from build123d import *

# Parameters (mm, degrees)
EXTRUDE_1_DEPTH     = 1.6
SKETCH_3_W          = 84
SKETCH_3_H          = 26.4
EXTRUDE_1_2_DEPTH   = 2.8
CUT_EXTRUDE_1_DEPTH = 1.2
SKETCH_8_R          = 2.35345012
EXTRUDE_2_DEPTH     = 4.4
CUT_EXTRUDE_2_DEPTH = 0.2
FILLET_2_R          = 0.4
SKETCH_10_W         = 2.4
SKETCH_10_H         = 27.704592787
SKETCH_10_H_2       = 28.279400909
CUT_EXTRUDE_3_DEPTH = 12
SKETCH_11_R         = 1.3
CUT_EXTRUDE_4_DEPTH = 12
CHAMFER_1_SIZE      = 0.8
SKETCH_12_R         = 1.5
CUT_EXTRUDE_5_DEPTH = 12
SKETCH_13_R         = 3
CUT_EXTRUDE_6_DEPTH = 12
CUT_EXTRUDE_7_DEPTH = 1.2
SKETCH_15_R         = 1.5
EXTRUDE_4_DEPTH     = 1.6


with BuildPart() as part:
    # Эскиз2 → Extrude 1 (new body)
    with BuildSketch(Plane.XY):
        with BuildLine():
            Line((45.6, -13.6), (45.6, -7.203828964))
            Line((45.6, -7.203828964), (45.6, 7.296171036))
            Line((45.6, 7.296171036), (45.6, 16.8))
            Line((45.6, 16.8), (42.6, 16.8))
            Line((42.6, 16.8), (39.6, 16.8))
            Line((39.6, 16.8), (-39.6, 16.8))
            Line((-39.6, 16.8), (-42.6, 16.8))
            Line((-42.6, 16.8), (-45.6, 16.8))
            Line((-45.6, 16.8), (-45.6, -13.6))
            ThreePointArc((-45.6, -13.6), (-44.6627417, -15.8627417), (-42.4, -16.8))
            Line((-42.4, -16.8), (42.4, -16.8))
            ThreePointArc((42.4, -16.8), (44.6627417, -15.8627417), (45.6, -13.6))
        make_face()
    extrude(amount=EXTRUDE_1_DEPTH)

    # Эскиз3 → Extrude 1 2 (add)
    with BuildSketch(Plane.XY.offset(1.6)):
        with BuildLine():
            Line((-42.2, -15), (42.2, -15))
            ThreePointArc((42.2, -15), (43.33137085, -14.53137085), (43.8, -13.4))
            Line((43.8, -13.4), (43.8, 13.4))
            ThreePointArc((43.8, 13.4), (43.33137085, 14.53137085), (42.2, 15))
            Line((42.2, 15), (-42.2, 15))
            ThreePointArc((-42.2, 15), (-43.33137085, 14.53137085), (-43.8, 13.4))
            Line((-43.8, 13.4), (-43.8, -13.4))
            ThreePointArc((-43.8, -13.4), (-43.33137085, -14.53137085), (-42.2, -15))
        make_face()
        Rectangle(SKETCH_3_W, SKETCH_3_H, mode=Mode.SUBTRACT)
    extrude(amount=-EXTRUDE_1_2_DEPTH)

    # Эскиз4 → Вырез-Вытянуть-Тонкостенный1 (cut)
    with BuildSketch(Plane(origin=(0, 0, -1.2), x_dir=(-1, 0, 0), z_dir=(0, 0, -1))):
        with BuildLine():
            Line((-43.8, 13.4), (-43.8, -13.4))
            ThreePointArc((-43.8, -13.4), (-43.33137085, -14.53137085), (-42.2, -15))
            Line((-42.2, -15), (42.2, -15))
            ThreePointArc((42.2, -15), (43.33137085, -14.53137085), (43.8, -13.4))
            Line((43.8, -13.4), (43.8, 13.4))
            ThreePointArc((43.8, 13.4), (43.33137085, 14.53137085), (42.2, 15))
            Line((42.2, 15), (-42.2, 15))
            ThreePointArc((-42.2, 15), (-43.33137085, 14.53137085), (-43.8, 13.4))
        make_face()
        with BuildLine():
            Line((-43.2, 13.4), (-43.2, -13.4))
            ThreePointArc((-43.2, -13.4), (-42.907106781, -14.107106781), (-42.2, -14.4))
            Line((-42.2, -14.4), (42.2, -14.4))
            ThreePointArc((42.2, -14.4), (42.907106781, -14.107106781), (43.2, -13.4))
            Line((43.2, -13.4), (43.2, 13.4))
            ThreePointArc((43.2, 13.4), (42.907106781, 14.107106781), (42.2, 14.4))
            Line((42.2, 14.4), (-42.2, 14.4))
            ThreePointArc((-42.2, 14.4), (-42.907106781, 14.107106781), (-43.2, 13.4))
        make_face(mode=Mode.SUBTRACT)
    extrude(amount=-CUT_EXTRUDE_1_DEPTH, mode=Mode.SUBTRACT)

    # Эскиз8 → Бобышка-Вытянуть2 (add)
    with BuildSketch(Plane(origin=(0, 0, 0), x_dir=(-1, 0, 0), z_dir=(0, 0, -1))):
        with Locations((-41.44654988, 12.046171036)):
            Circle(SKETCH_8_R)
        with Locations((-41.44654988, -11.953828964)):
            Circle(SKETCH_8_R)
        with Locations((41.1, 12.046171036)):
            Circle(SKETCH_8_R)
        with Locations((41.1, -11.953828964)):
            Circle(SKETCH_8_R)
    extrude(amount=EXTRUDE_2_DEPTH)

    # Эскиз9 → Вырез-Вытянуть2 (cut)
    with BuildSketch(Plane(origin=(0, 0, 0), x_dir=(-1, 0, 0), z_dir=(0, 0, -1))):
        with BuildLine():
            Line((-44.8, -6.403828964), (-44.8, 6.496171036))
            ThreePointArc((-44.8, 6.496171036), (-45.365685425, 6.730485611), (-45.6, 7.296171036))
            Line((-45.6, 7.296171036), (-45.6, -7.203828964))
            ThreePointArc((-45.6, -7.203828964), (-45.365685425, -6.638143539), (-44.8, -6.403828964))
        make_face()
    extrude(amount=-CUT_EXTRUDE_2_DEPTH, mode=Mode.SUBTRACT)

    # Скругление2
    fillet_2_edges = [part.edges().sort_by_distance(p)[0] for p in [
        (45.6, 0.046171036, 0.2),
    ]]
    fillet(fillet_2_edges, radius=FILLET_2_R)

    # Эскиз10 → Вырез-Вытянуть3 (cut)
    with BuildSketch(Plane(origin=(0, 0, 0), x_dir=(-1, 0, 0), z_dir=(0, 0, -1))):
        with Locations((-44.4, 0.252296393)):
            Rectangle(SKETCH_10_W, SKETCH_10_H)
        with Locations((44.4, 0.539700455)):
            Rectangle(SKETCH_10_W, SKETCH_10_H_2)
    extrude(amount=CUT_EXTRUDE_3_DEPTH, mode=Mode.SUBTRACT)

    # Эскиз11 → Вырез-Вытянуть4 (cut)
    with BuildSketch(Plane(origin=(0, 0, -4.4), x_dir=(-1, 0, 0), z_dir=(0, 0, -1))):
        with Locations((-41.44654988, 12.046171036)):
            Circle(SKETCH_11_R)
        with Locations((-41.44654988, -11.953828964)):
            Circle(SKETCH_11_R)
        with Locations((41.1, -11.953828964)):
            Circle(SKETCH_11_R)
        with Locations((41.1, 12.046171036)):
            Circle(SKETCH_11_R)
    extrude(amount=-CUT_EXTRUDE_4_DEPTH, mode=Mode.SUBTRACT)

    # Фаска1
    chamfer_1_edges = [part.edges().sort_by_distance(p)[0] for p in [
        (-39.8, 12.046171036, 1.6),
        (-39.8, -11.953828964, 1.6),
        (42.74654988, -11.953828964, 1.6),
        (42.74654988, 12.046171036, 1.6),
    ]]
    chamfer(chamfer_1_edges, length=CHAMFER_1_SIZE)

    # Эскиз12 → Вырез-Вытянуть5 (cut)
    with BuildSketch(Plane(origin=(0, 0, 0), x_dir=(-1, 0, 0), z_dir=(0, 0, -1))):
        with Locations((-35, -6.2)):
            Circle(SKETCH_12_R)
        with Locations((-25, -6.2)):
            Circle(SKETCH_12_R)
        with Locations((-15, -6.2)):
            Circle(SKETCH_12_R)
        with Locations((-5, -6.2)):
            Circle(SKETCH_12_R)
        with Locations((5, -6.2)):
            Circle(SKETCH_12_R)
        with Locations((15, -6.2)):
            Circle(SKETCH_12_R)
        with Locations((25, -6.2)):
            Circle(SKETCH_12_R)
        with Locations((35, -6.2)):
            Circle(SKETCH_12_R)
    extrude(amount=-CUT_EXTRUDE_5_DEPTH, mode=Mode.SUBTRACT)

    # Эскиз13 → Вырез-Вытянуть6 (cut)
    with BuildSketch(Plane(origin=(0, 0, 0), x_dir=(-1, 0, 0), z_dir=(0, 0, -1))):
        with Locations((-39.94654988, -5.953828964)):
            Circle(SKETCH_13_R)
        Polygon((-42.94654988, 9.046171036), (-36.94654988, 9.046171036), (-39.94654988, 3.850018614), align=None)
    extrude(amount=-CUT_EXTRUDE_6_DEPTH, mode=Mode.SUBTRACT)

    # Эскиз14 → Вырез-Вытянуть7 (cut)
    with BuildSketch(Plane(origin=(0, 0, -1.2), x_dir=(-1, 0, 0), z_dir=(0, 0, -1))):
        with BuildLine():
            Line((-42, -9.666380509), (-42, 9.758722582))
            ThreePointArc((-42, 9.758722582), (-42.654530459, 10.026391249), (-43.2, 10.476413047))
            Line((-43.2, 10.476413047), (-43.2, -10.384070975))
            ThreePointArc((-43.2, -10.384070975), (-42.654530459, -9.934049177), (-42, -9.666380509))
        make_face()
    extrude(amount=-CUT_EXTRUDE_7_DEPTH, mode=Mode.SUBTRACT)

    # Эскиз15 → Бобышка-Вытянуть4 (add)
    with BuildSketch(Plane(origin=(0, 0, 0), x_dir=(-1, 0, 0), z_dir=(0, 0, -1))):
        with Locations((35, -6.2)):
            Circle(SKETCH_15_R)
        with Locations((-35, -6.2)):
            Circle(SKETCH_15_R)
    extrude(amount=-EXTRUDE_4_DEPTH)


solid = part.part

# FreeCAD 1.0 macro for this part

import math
import FreeCAD as App
import Part
import Sketcher
Q = App.Units.Quantity


def edges_at(feature, points):
    """Names of the edges that pass closest to the given points."""
    edges = feature.Shape.Edges
    near = lambda p: min(range(len(edges)), key=lambda i: edges[i].distToShape(Part.Vertex(*p))[0])
    return sorted({f"Edge{near(p) + 1}" for p in points})

doc = App.newDocument("Part")
body = doc.addObject("PartDesign::Body", "Body")

sketch1 = body.newObject("Sketcher::SketchObject", "Sketch")
sketch1.AttachmentSupport = (doc.getObject("XY_Plane"), [""])
sketch1.MapMode = "FlatFace"
sketch1.addGeometry(Part.LineSegment(App.Vector(45.6, -13.6, 0), App.Vector(45.6, 16.8, 0)), False)
sketch1.addGeometry(Part.LineSegment(App.Vector(45.6, 16.8, 0), App.Vector(-45.6, 16.8, 0)), False)
sketch1.addGeometry(Part.LineSegment(App.Vector(-45.6, 16.8, 0), App.Vector(-45.6, -13.6, 0)), False)
sketch1.addGeometry(Part.ArcOfCircle(Part.Circle(App.Vector(-42.4, -13.6, 0), App.Vector(0, 0, 1), 3.2), math.radians(180), math.radians(270)), False)
sketch1.addGeometry(Part.LineSegment(App.Vector(-42.4, -16.8, 0), App.Vector(42.4, -16.8, 0)), False)
sketch1.addGeometry(Part.ArcOfCircle(Part.Circle(App.Vector(42.4, -13.6, 0), App.Vector(0, 0, 1), 3.2), math.radians(-90), math.radians(0)), False)
sketch1.addConstraint(Sketcher.Constraint("Coincident", 0, 2, 1, 1))
sketch1.addConstraint(Sketcher.Constraint("Coincident", 1, 2, 2, 1))
sketch1.addConstraint(Sketcher.Constraint("Tangent", 2, 2, 3, 1))
sketch1.addConstraint(Sketcher.Constraint("Tangent", 3, 2, 4, 1))
sketch1.addConstraint(Sketcher.Constraint("Tangent", 4, 2, 5, 1))
sketch1.addConstraint(Sketcher.Constraint("Tangent", 5, 2, 0, 1))
sketch1.addConstraint(Sketcher.Constraint("Vertical", 0))
sketch1.addConstraint(Sketcher.Constraint("Horizontal", 1))
sketch1.addConstraint(Sketcher.Constraint("Vertical", 2))
sketch1.addConstraint(Sketcher.Constraint("Horizontal", 4))
sketch1.addConstraint(Sketcher.Constraint("Equal", 3, 5))
sketch1.addConstraint(Sketcher.Constraint("Radius", 3, 3.2))
sketch1.addConstraint(Sketcher.Constraint("DistanceX", 1, 2, 1, 1, 91.2))
sketch1.addConstraint(Sketcher.Constraint("DistanceY", 0, 1, 0, 2, 30.4))
sketch1.addConstraint(Sketcher.Constraint("DistanceX", 3, 3, -1, 1, 42.4))
sketch1.addConstraint(Sketcher.Constraint("DistanceY", 3, 3, -1, 1, 13.6))
pad1 = body.newObject("PartDesign::Pad", "Pad")
pad1.Profile = sketch1
pad1.Length = 1.6

sketch2 = body.newObject("Sketcher::SketchObject", "Sketch001")
sketch2.AttachmentSupport = (doc.getObject("XY_Plane"), [""])
sketch2.MapMode = "FlatFace"
sketch2.AttachmentOffset = App.Placement(App.Vector(0, 0, 1.6), App.Rotation())
sketch2.addGeometry(Part.LineSegment(App.Vector(-42.2, -15, 0), App.Vector(42.2, -15, 0)), False)
sketch2.addGeometry(Part.ArcOfCircle(Part.Circle(App.Vector(42.2, -13.4, 0), App.Vector(0, 0, 1), 1.6), math.radians(-90), math.radians(0)), False)
sketch2.addGeometry(Part.LineSegment(App.Vector(43.8, -13.4, 0), App.Vector(43.8, 13.4, 0)), False)
sketch2.addGeometry(Part.ArcOfCircle(Part.Circle(App.Vector(42.2, 13.4, 0), App.Vector(0, 0, 1), 1.6), math.radians(0), math.radians(90)), False)
sketch2.addGeometry(Part.LineSegment(App.Vector(42.2, 15, 0), App.Vector(-42.2, 15, 0)), False)
sketch2.addGeometry(Part.ArcOfCircle(Part.Circle(App.Vector(-42.2, 13.4, 0), App.Vector(0, 0, 1), 1.6), math.radians(90), math.radians(180)), False)
sketch2.addGeometry(Part.LineSegment(App.Vector(-43.8, 13.4, 0), App.Vector(-43.8, -13.4, 0)), False)
sketch2.addGeometry(Part.ArcOfCircle(Part.Circle(App.Vector(-42.2, -13.4, 0), App.Vector(0, 0, 1), 1.6), math.radians(180), math.radians(270)), False)
sketch2.addGeometry(Part.LineSegment(App.Vector(42, -13.2, 0), App.Vector(-42, -13.2, 0)), False)
sketch2.addGeometry(Part.LineSegment(App.Vector(-42, -13.2, 0), App.Vector(-42, 13.2, 0)), False)
sketch2.addGeometry(Part.LineSegment(App.Vector(-42, 13.2, 0), App.Vector(42, 13.2, 0)), False)
sketch2.addGeometry(Part.LineSegment(App.Vector(42, 13.2, 0), App.Vector(42, -13.2, 0)), False)
sketch2.addConstraint(Sketcher.Constraint("Tangent", 0, 2, 1, 1))
sketch2.addConstraint(Sketcher.Constraint("Tangent", 1, 2, 2, 1))
sketch2.addConstraint(Sketcher.Constraint("Tangent", 2, 2, 3, 1))
sketch2.addConstraint(Sketcher.Constraint("Tangent", 3, 2, 4, 1))
sketch2.addConstraint(Sketcher.Constraint("Tangent", 4, 2, 5, 1))
sketch2.addConstraint(Sketcher.Constraint("Tangent", 5, 2, 6, 1))
sketch2.addConstraint(Sketcher.Constraint("Tangent", 6, 2, 7, 1))
sketch2.addConstraint(Sketcher.Constraint("Tangent", 7, 2, 0, 1))
sketch2.addConstraint(Sketcher.Constraint("Coincident", 8, 2, 9, 1))
sketch2.addConstraint(Sketcher.Constraint("Coincident", 9, 2, 10, 1))
sketch2.addConstraint(Sketcher.Constraint("Coincident", 10, 2, 11, 1))
sketch2.addConstraint(Sketcher.Constraint("Coincident", 11, 2, 8, 1))
sketch2.addConstraint(Sketcher.Constraint("Horizontal", 0))
sketch2.addConstraint(Sketcher.Constraint("Vertical", 2))
sketch2.addConstraint(Sketcher.Constraint("Horizontal", 4))
sketch2.addConstraint(Sketcher.Constraint("Vertical", 6))
sketch2.addConstraint(Sketcher.Constraint("Horizontal", 8))
sketch2.addConstraint(Sketcher.Constraint("Vertical", 9))
sketch2.addConstraint(Sketcher.Constraint("Horizontal", 10))
sketch2.addConstraint(Sketcher.Constraint("Vertical", 11))
sketch2.addConstraint(Sketcher.Constraint("Equal", 1, 3))
sketch2.addConstraint(Sketcher.Constraint("Equal", 3, 5))
sketch2.addConstraint(Sketcher.Constraint("Equal", 5, 7))
sketch2.addConstraint(Sketcher.Constraint("Symmetric", 1, 3, 5, 3, -1, 1))
sketch2.addConstraint(Sketcher.Constraint("Symmetric", 8, 2, 10, 2, -1, 1))
sketch2.addConstraint(Sketcher.Constraint("Radius", 1, 1.6))
sketch2.addConstraint(Sketcher.Constraint("DistanceX", 8, 2, 8, 1, 84.0))
sketch2.addConstraint(Sketcher.Constraint("DistanceX", 0, 1, 0, 2, 84.4))
sketch2.addConstraint(Sketcher.Constraint("DistanceY", 2, 1, 2, 2, 26.8))
sketch2.addConstraint(Sketcher.Constraint("DistanceY", 9, 1, 9, 2, 26.4))
pad2 = body.newObject("PartDesign::Pad", "Pad001")
pad2.Profile = sketch2
pad2.Length = 2.8
pad2.Reversed = True

sketch3 = body.newObject("Sketcher::SketchObject", "Sketch002")
sketch3.AttachmentSupport = (doc.getObject("XY_Plane"), [""])
sketch3.MapMode = "FlatFace"
sketch3.AttachmentOffset = App.Placement(App.Vector(0, 0, -1.2), App.Rotation())
sketch3.addGeometry(Part.LineSegment(App.Vector(43.8, 13.4, 0), App.Vector(43.8, -13.4, 0)), False)
sketch3.addGeometry(Part.ArcOfCircle(Part.Circle(App.Vector(42.2, -13.4, 0), App.Vector(0, 0, 1), 1.6), math.radians(-90), math.radians(0)), False)
sketch3.addGeometry(Part.LineSegment(App.Vector(42.2, -15, 0), App.Vector(-42.2, -15, 0)), False)
sketch3.addGeometry(Part.ArcOfCircle(Part.Circle(App.Vector(-42.2, -13.4, 0), App.Vector(0, 0, 1), 1.6), math.radians(180), math.radians(270)), False)
sketch3.addGeometry(Part.LineSegment(App.Vector(-43.8, -13.4, 0), App.Vector(-43.8, 13.4, 0)), False)
sketch3.addGeometry(Part.ArcOfCircle(Part.Circle(App.Vector(-42.2, 13.4, 0), App.Vector(0, 0, 1), 1.6), math.radians(90), math.radians(180)), False)
sketch3.addGeometry(Part.LineSegment(App.Vector(-42.2, 15, 0), App.Vector(42.2, 15, 0)), False)
sketch3.addGeometry(Part.ArcOfCircle(Part.Circle(App.Vector(42.2, 13.4, 0), App.Vector(0, 0, 1), 1.6), math.radians(0), math.radians(90)), False)
sketch3.addGeometry(Part.LineSegment(App.Vector(43.2, -13.4, 0), App.Vector(43.2, 13.4, 0)), False)
sketch3.addGeometry(Part.ArcOfCircle(Part.Circle(App.Vector(42.2, 13.4, 0), App.Vector(0, 0, 1), 1), math.radians(0), math.radians(90)), False)
sketch3.addGeometry(Part.LineSegment(App.Vector(42.2, 14.4, 0), App.Vector(-42.2, 14.4, 0)), False)
sketch3.addGeometry(Part.ArcOfCircle(Part.Circle(App.Vector(-42.2, 13.4, 0), App.Vector(0, 0, 1), 1), math.radians(90), math.radians(180)), False)
sketch3.addGeometry(Part.LineSegment(App.Vector(-43.2, 13.4, 0), App.Vector(-43.2, -13.4, 0)), False)
sketch3.addGeometry(Part.ArcOfCircle(Part.Circle(App.Vector(-42.2, -13.4, 0), App.Vector(0, 0, 1), 1), math.radians(-180), math.radians(-90)), False)
sketch3.addGeometry(Part.LineSegment(App.Vector(-42.2, -14.4, 0), App.Vector(42.2, -14.4, 0)), False)
sketch3.addGeometry(Part.ArcOfCircle(Part.Circle(App.Vector(42.2, -13.4, 0), App.Vector(0, 0, 1), 1), math.radians(-90), math.radians(0)), False)
sketch3.addConstraint(Sketcher.Constraint("Tangent", 0, 2, 1, 2))
sketch3.addConstraint(Sketcher.Constraint("Tangent", 1, 1, 2, 1))
sketch3.addConstraint(Sketcher.Constraint("Tangent", 2, 2, 3, 2))
sketch3.addConstraint(Sketcher.Constraint("Tangent", 3, 1, 4, 1))
sketch3.addConstraint(Sketcher.Constraint("Tangent", 4, 2, 5, 2))
sketch3.addConstraint(Sketcher.Constraint("Tangent", 5, 1, 6, 1))
sketch3.addConstraint(Sketcher.Constraint("Tangent", 6, 2, 7, 2))
sketch3.addConstraint(Sketcher.Constraint("Tangent", 7, 1, 0, 1))
sketch3.addConstraint(Sketcher.Constraint("Tangent", 8, 2, 9, 1))
sketch3.addConstraint(Sketcher.Constraint("Tangent", 9, 2, 10, 1))
sketch3.addConstraint(Sketcher.Constraint("Tangent", 10, 2, 11, 1))
sketch3.addConstraint(Sketcher.Constraint("Tangent", 11, 2, 12, 1))
sketch3.addConstraint(Sketcher.Constraint("Tangent", 12, 2, 13, 1))
sketch3.addConstraint(Sketcher.Constraint("Tangent", 13, 2, 14, 1))
sketch3.addConstraint(Sketcher.Constraint("Tangent", 14, 2, 15, 1))
sketch3.addConstraint(Sketcher.Constraint("Tangent", 15, 2, 8, 1))
sketch3.addConstraint(Sketcher.Constraint("Vertical", 0))
sketch3.addConstraint(Sketcher.Constraint("Horizontal", 2))
sketch3.addConstraint(Sketcher.Constraint("Vertical", 4))
sketch3.addConstraint(Sketcher.Constraint("Horizontal", 6))
sketch3.addConstraint(Sketcher.Constraint("Vertical", 8))
sketch3.addConstraint(Sketcher.Constraint("Horizontal", 10))
sketch3.addConstraint(Sketcher.Constraint("Vertical", 12))
sketch3.addConstraint(Sketcher.Constraint("Horizontal", 14))
sketch3.addConstraint(Sketcher.Constraint("Coincident", 9, 3, 7, 3))
sketch3.addConstraint(Sketcher.Constraint("Coincident", 11, 3, 5, 3))
sketch3.addConstraint(Sketcher.Constraint("Coincident", 13, 3, 3, 3))
sketch3.addConstraint(Sketcher.Constraint("Equal", 1, 3))
sketch3.addConstraint(Sketcher.Constraint("Equal", 3, 5))
sketch3.addConstraint(Sketcher.Constraint("Equal", 5, 7))
sketch3.addConstraint(Sketcher.Constraint("Equal", 13, 15))
sketch3.addConstraint(Sketcher.Constraint("Symmetric", 1, 3, 5, 3, -1, 1))
sketch3.addConstraint(Sketcher.Constraint("Radius", 9, 1.0))
sketch3.addConstraint(Sketcher.Constraint("Radius", 1, 1.6))
sketch3.addConstraint(Sketcher.Constraint("DistanceX", 2, 2, 2, 1, 84.4))
sketch3.addConstraint(Sketcher.Constraint("DistanceY", 0, 2, 0, 1, 26.8))
pocket1 = body.newObject("PartDesign::Pocket", "Pocket")
pocket1.Profile = sketch3
pocket1.Length = 1.2
pocket1.Reversed = True

sketch4 = body.newObject("Sketcher::SketchObject", "Sketch003")
sketch4.AttachmentSupport = (doc.getObject("XY_Plane"), [""])
sketch4.MapMode = "FlatFace"
sketch4.addGeometry(Part.Circle(App.Vector(41.4, 12, 0), App.Vector(0, 0, 1), 2.4), False)
sketch4.addGeometry(Part.Circle(App.Vector(41.4, -12, 0), App.Vector(0, 0, 1), 2.4), False)
sketch4.addGeometry(Part.Circle(App.Vector(-41.1, 12, 0), App.Vector(0, 0, 1), 2.4), False)
sketch4.addGeometry(Part.Circle(App.Vector(-41.1, -12, 0), App.Vector(0, 0, 1), 2.4), False)
sketch4.addConstraint(Sketcher.Constraint("Equal", 0, 1))
sketch4.addConstraint(Sketcher.Constraint("Equal", 1, 2))
sketch4.addConstraint(Sketcher.Constraint("Equal", 2, 3))
sketch4.addConstraint(Sketcher.Constraint("Horizontal", 0, 3, 2, 3))
sketch4.addConstraint(Sketcher.Constraint("Horizontal", 1, 3, 3, 3))
sketch4.addConstraint(Sketcher.Constraint("Vertical", 0, 3, 1, 3))
sketch4.addConstraint(Sketcher.Constraint("Vertical", 2, 3, 3, 3))
sketch4.addConstraint(Sketcher.Constraint("DistanceY", 1, 3, 0, 3, 24.0))
sketch4.addConstraint(Sketcher.Constraint("Diameter", 0, 4.7069))
sketch4.addConstraint(Sketcher.Constraint("DistanceX", 2, 3, -1, 1, 41.1))
sketch4.addConstraint(Sketcher.Constraint("DistanceX", -1, 1, 0, 3, 41.44655))
sketch4.addConstraint(Sketcher.Constraint("DistanceY", -1, 1, 0, 3, 12.046171))
pad3 = body.newObject("PartDesign::Pad", "Pad002")
pad3.Profile = sketch4
pad3.Length = 4.4
pad3.Reversed = True

sketch5 = body.newObject("Sketcher::SketchObject", "Sketch004")
sketch5.AttachmentSupport = (doc.getObject("XY_Plane"), [""])
sketch5.MapMode = "FlatFace"
sketch5.addGeometry(Part.LineSegment(App.Vector(44.8, -6.4, 0), App.Vector(44.8, 6.5, 0)), False)
sketch5.addGeometry(Part.ArcOfCircle(Part.Circle(App.Vector(44.8, 7.3, 0), App.Vector(0, 0, 1), 0.8), math.radians(-90), math.radians(0)), False)
sketch5.addGeometry(Part.LineSegment(App.Vector(45.6, 7.3, 0), App.Vector(45.6, -7.2, 0)), False)
sketch5.addGeometry(Part.ArcOfCircle(Part.Circle(App.Vector(44.8, -7.2, 0), App.Vector(0, 0, 1), 0.8), math.radians(0), math.radians(90)), False)
sketch5.addConstraint(Sketcher.Constraint("Coincident", 0, 2, 1, 1))
sketch5.addConstraint(Sketcher.Constraint("Tangent", 1, 2, 2, 1))
sketch5.addConstraint(Sketcher.Constraint("Tangent", 2, 2, 3, 1))
sketch5.addConstraint(Sketcher.Constraint("Coincident", 3, 2, 0, 1))
sketch5.addConstraint(Sketcher.Constraint("Vertical", 0))
sketch5.addConstraint(Sketcher.Constraint("Vertical", 2))
sketch5.addConstraint(Sketcher.Constraint("Equal", 1, 3))
sketch5.addConstraint(Sketcher.Constraint("Vertical", 3, 3, 0, 2))
sketch5.addConstraint(Sketcher.Constraint("Radius", 1, 0.8))
sketch5.addConstraint(Sketcher.Constraint("DistanceY", 0, 1, 0, 2, 12.9))
sketch5.addConstraint(Sketcher.Constraint("DistanceX", -1, 1, 1, 3, 44.8))
sketch5.addConstraint(Sketcher.Constraint("DistanceY", -1, 1, 1, 3, 7.296171))
pocket2 = body.newObject("PartDesign::Pocket", "Pocket001")
pocket2.Profile = sketch5
pocket2.Length = 0.2
pocket2.Reversed = True
doc.recompute()

fillet = body.newObject("PartDesign::Fillet", "Fillet")
fillet.Base = (pocket2, edges_at(pocket2, [(45.6, 0.046, 0.2)]))
fillet.Radius = 0.4

sketch6 = body.newObject("Sketcher::SketchObject", "Sketch005")
sketch6.AttachmentSupport = (doc.getObject("XY_Plane"), [""])
sketch6.MapMode = "FlatFace"
sketch6.addGeometry(Part.LineSegment(App.Vector(45.6, 14.1, 0), App.Vector(45.6, -13.6, 0)), False)
sketch6.addGeometry(Part.LineSegment(App.Vector(45.6, -13.6, 0), App.Vector(43.2, -13.6, 0)), False)
sketch6.addGeometry(Part.LineSegment(App.Vector(43.2, -13.6, 0), App.Vector(43.2, 14.1, 0)), False)
sketch6.addGeometry(Part.LineSegment(App.Vector(43.2, 14.1, 0), App.Vector(45.6, 14.1, 0)), False)
sketch6.addGeometry(Part.LineSegment(App.Vector(-43.2, 14.7, 0), App.Vector(-43.2, -13.6, 0)), False)
sketch6.addGeometry(Part.LineSegment(App.Vector(-43.2, -13.6, 0), App.Vector(-45.6, -13.6, 0)), False)
sketch6.addGeometry(Part.LineSegment(App.Vector(-45.6, -13.6, 0), App.Vector(-45.6, 14.7, 0)), False)
sketch6.addGeometry(Part.LineSegment(App.Vector(-45.6, 14.7, 0), App.Vector(-43.2, 14.7, 0)), False)
sketch6.addConstraint(Sketcher.Constraint("Coincident", 0, 2, 1, 1))
sketch6.addConstraint(Sketcher.Constraint("Coincident", 1, 2, 2, 1))
sketch6.addConstraint(Sketcher.Constraint("Coincident", 2, 2, 3, 1))
sketch6.addConstraint(Sketcher.Constraint("Coincident", 3, 2, 0, 1))
sketch6.addConstraint(Sketcher.Constraint("Coincident", 4, 2, 5, 1))
sketch6.addConstraint(Sketcher.Constraint("Coincident", 5, 2, 6, 1))
sketch6.addConstraint(Sketcher.Constraint("Coincident", 6, 2, 7, 1))
sketch6.addConstraint(Sketcher.Constraint("Coincident", 7, 2, 4, 1))
sketch6.addConstraint(Sketcher.Constraint("Vertical", 0))
sketch6.addConstraint(Sketcher.Constraint("Horizontal", 1))
sketch6.addConstraint(Sketcher.Constraint("Vertical", 2))
sketch6.addConstraint(Sketcher.Constraint("Horizontal", 3))
sketch6.addConstraint(Sketcher.Constraint("Vertical", 4))
sketch6.addConstraint(Sketcher.Constraint("Horizontal", 5))
sketch6.addConstraint(Sketcher.Constraint("Vertical", 6))
sketch6.addConstraint(Sketcher.Constraint("Horizontal", 7))
sketch6.addConstraint(Sketcher.Constraint("Symmetric", 1, 2, 4, 2, -2))
sketch6.addConstraint(Sketcher.Constraint("Equal", 3, 5))
sketch6.addConstraint(Sketcher.Constraint("DistanceX", 1, 2, 1, 1, 2.4))
sketch6.addConstraint(Sketcher.Constraint("DistanceX", -1, 1, 0, 2, 45.6))
sketch6.addConstraint(Sketcher.Constraint("DistanceY", 0, 2, -1, 1, 13.6))
sketch6.addConstraint(Sketcher.Constraint("DistanceY", 4, 2, 4, 1, 28.279401))
sketch6.addConstraint(Sketcher.Constraint("DistanceY", 0, 2, 0, 1, 27.704593))
pocket3 = body.newObject("PartDesign::Pocket", "Pocket002")
pocket3.Profile = sketch6
pocket3.Length = 12

sketch7 = body.newObject("Sketcher::SketchObject", "Sketch006")
sketch7.AttachmentSupport = (doc.getObject("XY_Plane"), [""])
sketch7.MapMode = "FlatFace"
sketch7.AttachmentOffset = App.Placement(App.Vector(0, 0, -4.4), App.Rotation())
sketch7.addGeometry(Part.Circle(App.Vector(41.4, 12, 0), App.Vector(0, 0, 1), 1.3), False)
sketch7.addGeometry(Part.Circle(App.Vector(41.4, -12, 0), App.Vector(0, 0, 1), 1.3), False)
sketch7.addGeometry(Part.Circle(App.Vector(-41.1, -12, 0), App.Vector(0, 0, 1), 1.3), False)
sketch7.addGeometry(Part.Circle(App.Vector(-41.1, 12, 0), App.Vector(0, 0, 1), 1.3), False)
sketch7.addConstraint(Sketcher.Constraint("Equal", 0, 1))
sketch7.addConstraint(Sketcher.Constraint("Equal", 1, 2))
sketch7.addConstraint(Sketcher.Constraint("Equal", 2, 3))
sketch7.addConstraint(Sketcher.Constraint("Horizontal", 1, 3, 2, 3))
sketch7.addConstraint(Sketcher.Constraint("Horizontal", 0, 3, 3, 3))
sketch7.addConstraint(Sketcher.Constraint("Vertical", 0, 3, 1, 3))
sketch7.addConstraint(Sketcher.Constraint("Vertical", 2, 3, 3, 3))
sketch7.addConstraint(Sketcher.Constraint("Diameter", 0, 2.6))
sketch7.addConstraint(Sketcher.Constraint("DistanceY", 1, 3, 0, 3, 24.0))
sketch7.addConstraint(Sketcher.Constraint("DistanceX", 2, 3, -1, 1, 41.1))
sketch7.addConstraint(Sketcher.Constraint("DistanceX", -1, 1, 0, 3, 41.44655))
sketch7.addConstraint(Sketcher.Constraint("DistanceY", -1, 1, 0, 3, 12.046171))
pocket4 = body.newObject("PartDesign::Pocket", "Pocket003")
pocket4.Profile = sketch7
pocket4.Length = 12
pocket4.Reversed = True
doc.recompute()

chamfer = body.newObject("PartDesign::Chamfer", "Chamfer")
chamfer.Base = (pocket4, edges_at(pocket4, [
    (-39.8, 12.046, 1.6),
    (-39.8, -11.954, 1.6),
    (42.747, -11.954, 1.6),
    (42.747, 12.046, 1.6),
]))
chamfer.Size = 0.8

sketch8 = body.newObject("Sketcher::SketchObject", "Sketch007")
sketch8.AttachmentSupport = (doc.getObject("XY_Plane"), [""])
sketch8.MapMode = "FlatFace"
sketch8.addGeometry(Part.Circle(App.Vector(35, -6.2, 0), App.Vector(0, 0, 1), 1.5), False)
sketch8.addGeometry(Part.Circle(App.Vector(25, -6.2, 0), App.Vector(0, 0, 1), 1.5), False)
sketch8.addGeometry(Part.Circle(App.Vector(15, -6.2, 0), App.Vector(0, 0, 1), 1.5), False)
sketch8.addGeometry(Part.Circle(App.Vector(5, -6.2, 0), App.Vector(0, 0, 1), 1.5), False)
sketch8.addGeometry(Part.Circle(App.Vector(-5, -6.2, 0), App.Vector(0, 0, 1), 1.5), False)
sketch8.addGeometry(Part.Circle(App.Vector(-15, -6.2, 0), App.Vector(0, 0, 1), 1.5), False)
sketch8.addGeometry(Part.Circle(App.Vector(-25, -6.2, 0), App.Vector(0, 0, 1), 1.5), False)
sketch8.addGeometry(Part.Circle(App.Vector(-35, -6.2, 0), App.Vector(0, 0, 1), 1.5), False)
sketch8.addConstraint(Sketcher.Constraint("Equal", 0, 1))
sketch8.addConstraint(Sketcher.Constraint("Equal", 1, 2))
sketch8.addConstraint(Sketcher.Constraint("Equal", 2, 3))
sketch8.addConstraint(Sketcher.Constraint("Equal", 3, 4))
sketch8.addConstraint(Sketcher.Constraint("Equal", 4, 5))
sketch8.addConstraint(Sketcher.Constraint("Equal", 5, 6))
sketch8.addConstraint(Sketcher.Constraint("Equal", 6, 7))
sketch8.addConstraint(Sketcher.Constraint("Symmetric", 3, 3, 4, 3, -2))
sketch8.addConstraint(Sketcher.Constraint("Symmetric", 2, 3, 5, 3, -2))
sketch8.addConstraint(Sketcher.Constraint("Symmetric", 1, 3, 6, 3, -2))
sketch8.addConstraint(Sketcher.Constraint("Symmetric", 0, 3, 7, 3, -2))
sketch8.addConstraint(Sketcher.Constraint("Horizontal", 0, 3, 1, 3))
sketch8.addConstraint(Sketcher.Constraint("Horizontal", 1, 3, 2, 3))
sketch8.addConstraint(Sketcher.Constraint("Horizontal", 2, 3, 3, 3))
sketch8.addConstraint(Sketcher.Constraint("Diameter", 0, 3.0))
sketch8.addConstraint(Sketcher.Constraint("DistanceX", -1, 1, 0, 3, 35.0))
sketch8.addConstraint(Sketcher.Constraint("DistanceX", -1, 1, 1, 3, 25.0))
sketch8.addConstraint(Sketcher.Constraint("DistanceX", -1, 1, 2, 3, 15.0))
sketch8.addConstraint(Sketcher.Constraint("DistanceX", -1, 1, 3, 3, 5.0))
sketch8.addConstraint(Sketcher.Constraint("DistanceY", 0, 3, -1, 1, 6.2))
pocket5 = body.newObject("PartDesign::Pocket", "Pocket004")
pocket5.Profile = sketch8
pocket5.Length = 12
pocket5.Reversed = True

sketch9 = body.newObject("Sketcher::SketchObject", "Sketch008")
sketch9.AttachmentSupport = (doc.getObject("XY_Plane"), [""])
sketch9.MapMode = "FlatFace"
sketch9.addGeometry(Part.Circle(App.Vector(39.9, -6, 0), App.Vector(0, 0, 1), 3), False)
sketch9.addGeometry(Part.LineSegment(App.Vector(36.9, 9, 0), App.Vector(42.9, 9, 0)), False)
sketch9.addGeometry(Part.LineSegment(App.Vector(42.9, 9, 0), App.Vector(39.9, 3.9, 0)), False)
sketch9.addGeometry(Part.LineSegment(App.Vector(39.9, 3.9, 0), App.Vector(36.9, 9, 0)), False)
sketch9.addConstraint(Sketcher.Constraint("Coincident", 1, 2, 2, 1))
sketch9.addConstraint(Sketcher.Constraint("Coincident", 2, 2, 3, 1))
sketch9.addConstraint(Sketcher.Constraint("Coincident", 3, 2, 1, 1))
sketch9.addConstraint(Sketcher.Constraint("Horizontal", 1))
sketch9.addConstraint(Sketcher.Constraint("Vertical", 0, 3, 2, 2))
sketch9.addConstraint(Sketcher.Constraint("Equal", 2, 3))
sketch9.addConstraint(Sketcher.Constraint("Diameter", 0, 6.0))
sketch9.addConstraint(Sketcher.Constraint("DistanceX", 1, 1, 1, 2, 6.0))
sketch9.addConstraint(Sketcher.Constraint("Angle", 2, Q("-120 deg")))
sketch9.addConstraint(Sketcher.Constraint("DistanceY", 0, 3, 1, 2, 15.0))
sketch9.addConstraint(Sketcher.Constraint("DistanceX", -1, 1, 0, 3, 39.94655))
sketch9.addConstraint(Sketcher.Constraint("DistanceY", 0, 3, -1, 1, 5.953829))
pocket6 = body.newObject("PartDesign::Pocket", "Pocket005")
pocket6.Profile = sketch9
pocket6.Length = 12
pocket6.Reversed = True

sketch10 = body.newObject("Sketcher::SketchObject", "Sketch009")
sketch10.AttachmentSupport = (doc.getObject("XY_Plane"), [""])
sketch10.MapMode = "FlatFace"
sketch10.AttachmentOffset = App.Placement(App.Vector(0, 0, -1.2), App.Rotation())
sketch10.addGeometry(Part.LineSegment(App.Vector(42, -9.7, 0), App.Vector(42, 9.8, 0)), False)
sketch10.addGeometry(Part.ArcOfCircle(Part.Circle(App.Vector(41.4, 12, 0), App.Vector(0, 0, 1), 2.4), math.radians(-76), math.radians(-42)), False)
sketch10.addGeometry(Part.LineSegment(App.Vector(43.2, 10.5, 0), App.Vector(43.2, -10.4, 0)), False)
sketch10.addGeometry(Part.ArcOfCircle(Part.Circle(App.Vector(41.4, -12, 0), App.Vector(0, 0, 1), 2.4), math.radians(42), math.radians(76)), False)
sketch10.addConstraint(Sketcher.Constraint("Coincident", 0, 2, 1, 1))
sketch10.addConstraint(Sketcher.Constraint("Coincident", 1, 2, 2, 1))
sketch10.addConstraint(Sketcher.Constraint("Coincident", 2, 2, 3, 1))
sketch10.addConstraint(Sketcher.Constraint("Coincident", 3, 2, 0, 1))
sketch10.addConstraint(Sketcher.Constraint("Vertical", 0))
sketch10.addConstraint(Sketcher.Constraint("Vertical", 2))
sketch10.addConstraint(Sketcher.Constraint("Equal", 1, 3))
sketch10.addConstraint(Sketcher.Constraint("Vertical", 1, 3, 3, 3))
sketch10.addConstraint(Sketcher.Constraint("DistanceX", -1, 1, 0, 2, 42.0))
sketch10.addConstraint(Sketcher.Constraint("DistanceY", 3, 3, 1, 3, 24.0))
sketch10.addConstraint(Sketcher.Constraint("DistanceX", -1, 1, 1, 2, 43.2))
sketch10.addConstraint(Sketcher.Constraint("Radius", 1, 2.35345))
sketch10.addConstraint(Sketcher.Constraint("DistanceY", 0, 1, 0, 2, 19.425103))
sketch10.addConstraint(Sketcher.Constraint("DistanceY", -1, 1, 1, 3, 12.046171))
pocket7 = body.newObject("PartDesign::Pocket", "Pocket006")
pocket7.Profile = sketch10
pocket7.Length = 1.2
pocket7.Reversed = True

sketch11 = body.newObject("Sketcher::SketchObject", "Sketch010")
sketch11.AttachmentSupport = (doc.getObject("XY_Plane"), [""])
sketch11.MapMode = "FlatFace"
sketch11.addGeometry(Part.Circle(App.Vector(-35, -6.2, 0), App.Vector(0, 0, 1), 1.5), False)
sketch11.addGeometry(Part.Circle(App.Vector(35, -6.2, 0), App.Vector(0, 0, 1), 1.5), False)
sketch11.addConstraint(Sketcher.Constraint("Equal", 0, 1))
sketch11.addConstraint(Sketcher.Constraint("Symmetric", 0, 3, 1, 3, -2))
sketch11.addConstraint(Sketcher.Constraint("Diameter", 0, 3.0))
sketch11.addConstraint(Sketcher.Constraint("DistanceX", 0, 3, -1, 1, 35.0))
sketch11.addConstraint(Sketcher.Constraint("DistanceY", 0, 3, -1, 1, 6.2))
pad4 = body.newObject("PartDesign::Pad", "Pad003")
pad4.Profile = sketch11
pad4.Length = 1.6

doc.recompute()
